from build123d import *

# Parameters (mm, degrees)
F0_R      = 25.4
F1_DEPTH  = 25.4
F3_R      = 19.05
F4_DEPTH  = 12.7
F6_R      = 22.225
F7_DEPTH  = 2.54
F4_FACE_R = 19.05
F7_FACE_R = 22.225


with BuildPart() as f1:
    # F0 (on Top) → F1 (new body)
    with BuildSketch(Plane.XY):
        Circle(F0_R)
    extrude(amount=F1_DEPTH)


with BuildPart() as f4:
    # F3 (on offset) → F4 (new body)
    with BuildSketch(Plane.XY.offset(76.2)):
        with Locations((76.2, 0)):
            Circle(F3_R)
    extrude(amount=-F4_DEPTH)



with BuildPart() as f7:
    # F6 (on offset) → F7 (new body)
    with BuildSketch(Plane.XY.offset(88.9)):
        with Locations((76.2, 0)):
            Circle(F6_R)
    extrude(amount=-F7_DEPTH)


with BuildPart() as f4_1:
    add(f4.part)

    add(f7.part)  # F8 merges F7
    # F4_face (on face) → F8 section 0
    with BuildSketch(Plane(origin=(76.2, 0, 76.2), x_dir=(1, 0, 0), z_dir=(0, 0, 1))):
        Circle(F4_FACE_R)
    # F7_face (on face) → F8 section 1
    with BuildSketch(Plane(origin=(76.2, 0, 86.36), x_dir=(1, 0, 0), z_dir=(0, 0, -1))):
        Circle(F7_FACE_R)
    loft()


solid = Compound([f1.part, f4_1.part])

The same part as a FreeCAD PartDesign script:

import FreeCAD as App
import Part
import Sketcher
from FreeCAD import Vector
Q = App.Units.Quantity

doc = App.newDocument("Part")
body = doc.addObject("PartDesign::Body", "Body")

sketch1 = body.newObject("Sketcher::SketchObject", "Sketch")
sketch1.AttachmentSupport = (doc.getObject("XY_Plane"), [""])
sketch1.MapMode = "FlatFace"
sketch1.addGeometry(Part.Circle(Vector(0, 0, 0), Vector(0, 0, 1), 25.4), False)
sketch1.addConstraint(Sketcher.Constraint("Coincident", 0, 3, -1, 1))
sketch1.addConstraint(Sketcher.Constraint("Diameter", 0, Q("2 in")))
pad1 = body.newObject("PartDesign::Pad", "Pad")
pad1.Profile = sketch1
pad1.Length = Q("1 in")
body2 = doc.addObject("PartDesign::Body", "Body001")

sketch2 = body2.newObject("Sketcher::SketchObject", "Sketch001")
sketch2.AttachmentSupport = (doc.getObject("XY_Plane001"), [""])
sketch2.MapMode = "FlatFace"
sketch2.AttachmentOffset = App.Placement(Vector(0, 0, 3 * 25.4), App.Rotation())
sketch2.addGeometry(Part.Circle(Vector(76.2, 0, 0), Vector(0, 0, 1), 19.05), False)
sketch2.addConstraint(Sketcher.Constraint("PointOnObject", 0, 3, -1))
sketch2.addConstraint(Sketcher.Constraint("Diameter", 0, Q("1.5 in")))
sketch2.addConstraint(Sketcher.Constraint("DistanceX", -1, 1, 0, 3, Q("3 in")))
pad2 = body2.newObject("PartDesign::Pad", "Pad001")
pad2.Profile = sketch2
pad2.Length = Q("0.5 in")
pad2.Reversed = True
body3 = doc.addObject("PartDesign::Body", "Body002")

sketch3 = body3.newObject("Sketcher::SketchObject", "Sketch002")
sketch3.AttachmentSupport = (doc.getObject("XY_Plane002"), [""])
sketch3.MapMode = "FlatFace"
sketch3.AttachmentOffset = App.Placement(Vector(0, 0, 3.5 * 25.4), App.Rotation())
sketch3.addGeometry(Part.Circle(Vector(76.2, 0, 0), Vector(0, 0, 1), 22.225), False)
sketch3.addConstraint(Sketcher.Constraint("PointOnObject", 0, 3, -1))
sketch3.addConstraint(Sketcher.Constraint("Diameter", 0, Q("1.75 in")))
sketch3.addConstraint(Sketcher.Constraint("DistanceX", -1, 1, 0, 3, Q("3 in")))
pad3 = body3.newObject("PartDesign::Pad", "Pad002")
pad3.Profile = sketch3
pad3.Length = Q("0.1 in")
pad3.Reversed = True
body2.AllowCompound = True
doc.recompute()

boolean = body2.newObject("PartDesign::Boolean", "Boolean")
boolean.Type = "Fuse"
boolean.addObjects([body3])

sketch4 = body2.newObject("Sketcher::SketchObject", "Sketch003")
sketch4.AttachmentSupport = (doc.getObject("XY_Plane001"), [""])
sketch4.MapMode = "FlatFace"
sketch4.AttachmentOffset = App.Placement(Vector(0, 0, 3 * 25.4), App.Rotation())
sketch4.addGeometry(Part.Circle(Vector(76.2, 0, 0), Vector(0, 0, 1), 19.05), False)
sketch4.addConstraint(Sketcher.Constraint("PointOnObject", 0, 3, -1))
sketch4.addConstraint(Sketcher.Constraint("Diameter", 0, Q("1.5 in")))
sketch4.addConstraint(Sketcher.Constraint("DistanceX", -1, 1, 0, 3, Q("3 in")))

sketch5 = body2.newObject("Sketcher::SketchObject", "Sketch004")
sketch5.AttachmentSupport = (doc.getObject("XY_Plane001"), [""])
sketch5.MapMode = "FlatFace"
sketch5.AttachmentOffset = App.Placement(Vector(0, 0, 3.4 * 25.4), App.Rotation())
sketch5.addGeometry(Part.Circle(Vector(76.2, 0, 0), Vector(0, 0, 1), 22.225), False)
sketch5.addConstraint(Sketcher.Constraint("PointOnObject", 0, 3, -1))
sketch5.addConstraint(Sketcher.Constraint("Diameter", 0, Q("1.75 in")))
sketch5.addConstraint(Sketcher.Constraint("DistanceX", -1, 1, 0, 3, Q("3 in")))

additiveloft = body2.newObject("PartDesign::AdditiveLoft", "AdditiveLoft")
additiveloft.Profile = sketch4
additiveloft.Sections = [sketch5]

doc.recompute()
